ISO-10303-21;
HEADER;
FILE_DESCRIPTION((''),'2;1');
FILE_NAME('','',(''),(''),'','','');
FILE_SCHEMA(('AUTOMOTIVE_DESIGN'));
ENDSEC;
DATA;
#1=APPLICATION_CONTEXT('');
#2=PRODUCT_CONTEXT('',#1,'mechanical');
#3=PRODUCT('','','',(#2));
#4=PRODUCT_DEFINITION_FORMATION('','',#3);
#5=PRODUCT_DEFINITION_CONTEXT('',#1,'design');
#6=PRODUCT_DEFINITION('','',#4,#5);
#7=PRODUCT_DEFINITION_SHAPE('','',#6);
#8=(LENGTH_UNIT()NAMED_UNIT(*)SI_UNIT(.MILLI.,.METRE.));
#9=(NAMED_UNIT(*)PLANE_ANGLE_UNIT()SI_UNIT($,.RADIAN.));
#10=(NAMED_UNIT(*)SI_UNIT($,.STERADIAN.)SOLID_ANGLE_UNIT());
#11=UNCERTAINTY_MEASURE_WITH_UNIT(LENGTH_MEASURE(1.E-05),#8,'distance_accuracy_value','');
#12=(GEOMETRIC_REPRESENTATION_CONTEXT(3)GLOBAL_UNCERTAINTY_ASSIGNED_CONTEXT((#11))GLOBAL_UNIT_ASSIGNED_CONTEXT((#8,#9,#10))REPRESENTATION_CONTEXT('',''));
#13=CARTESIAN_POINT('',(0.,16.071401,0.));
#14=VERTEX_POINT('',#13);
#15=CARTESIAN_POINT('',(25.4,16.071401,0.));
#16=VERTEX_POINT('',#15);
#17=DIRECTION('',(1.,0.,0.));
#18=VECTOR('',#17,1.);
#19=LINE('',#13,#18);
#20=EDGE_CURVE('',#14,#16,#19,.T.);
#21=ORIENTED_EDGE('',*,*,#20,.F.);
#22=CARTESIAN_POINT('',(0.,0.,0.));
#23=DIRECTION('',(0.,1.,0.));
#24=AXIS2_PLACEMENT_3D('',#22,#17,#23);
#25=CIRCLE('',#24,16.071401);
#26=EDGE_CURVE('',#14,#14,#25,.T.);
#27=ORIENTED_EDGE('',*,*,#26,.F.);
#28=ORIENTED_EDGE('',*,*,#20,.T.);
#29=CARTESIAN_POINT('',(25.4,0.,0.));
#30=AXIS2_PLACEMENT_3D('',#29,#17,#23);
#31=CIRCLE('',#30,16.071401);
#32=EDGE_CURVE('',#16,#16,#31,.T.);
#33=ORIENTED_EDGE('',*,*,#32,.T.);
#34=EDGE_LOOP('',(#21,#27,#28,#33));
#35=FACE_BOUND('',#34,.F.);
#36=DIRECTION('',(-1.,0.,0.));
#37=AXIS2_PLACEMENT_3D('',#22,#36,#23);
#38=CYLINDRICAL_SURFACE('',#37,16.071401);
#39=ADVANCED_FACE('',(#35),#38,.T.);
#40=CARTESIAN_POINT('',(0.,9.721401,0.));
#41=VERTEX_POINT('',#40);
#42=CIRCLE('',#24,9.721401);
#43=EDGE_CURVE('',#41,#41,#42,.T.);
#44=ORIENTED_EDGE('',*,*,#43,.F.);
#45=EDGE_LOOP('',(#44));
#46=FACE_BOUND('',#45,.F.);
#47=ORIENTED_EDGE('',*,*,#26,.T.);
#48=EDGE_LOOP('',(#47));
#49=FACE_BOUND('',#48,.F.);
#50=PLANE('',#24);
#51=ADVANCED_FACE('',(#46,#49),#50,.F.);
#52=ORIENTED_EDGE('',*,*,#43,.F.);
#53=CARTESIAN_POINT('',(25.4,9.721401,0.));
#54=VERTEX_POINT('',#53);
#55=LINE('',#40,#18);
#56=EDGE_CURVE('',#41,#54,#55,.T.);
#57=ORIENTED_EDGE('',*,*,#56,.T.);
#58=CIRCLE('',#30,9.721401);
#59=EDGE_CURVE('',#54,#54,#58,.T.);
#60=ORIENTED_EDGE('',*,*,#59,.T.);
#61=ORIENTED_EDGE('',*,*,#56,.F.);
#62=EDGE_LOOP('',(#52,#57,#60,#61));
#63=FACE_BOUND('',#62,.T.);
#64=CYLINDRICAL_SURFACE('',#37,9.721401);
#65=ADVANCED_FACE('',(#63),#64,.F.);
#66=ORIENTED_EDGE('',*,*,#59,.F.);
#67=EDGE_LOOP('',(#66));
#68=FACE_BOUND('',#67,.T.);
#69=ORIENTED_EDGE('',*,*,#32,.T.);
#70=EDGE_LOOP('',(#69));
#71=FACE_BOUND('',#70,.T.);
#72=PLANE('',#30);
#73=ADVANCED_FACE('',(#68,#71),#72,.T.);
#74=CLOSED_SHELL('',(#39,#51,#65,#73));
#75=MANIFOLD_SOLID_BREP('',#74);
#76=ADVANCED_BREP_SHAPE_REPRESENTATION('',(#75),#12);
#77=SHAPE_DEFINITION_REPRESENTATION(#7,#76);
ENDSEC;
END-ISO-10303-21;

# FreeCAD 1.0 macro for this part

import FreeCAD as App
import Part
import Sketcher
Q = App.Units.Quantity

doc = App.newDocument("Part")
params = doc.addObject("Spreadsheet::Sheet", "Params")
for row, (alias, value) in enumerate([
    ("pad1_length", "1 in"),
    ("pocket1_length", "1 in"),
], start=1):
    params.set(f"A{row}", alias)
    params.set(f"B{row}", "=" + value)
    params.setAlias(f"B{row}", alias)

body = doc.addObject("PartDesign::Body", "Body")

# Sketch on YZ plane
sketch1 = body.newObject("Sketcher::SketchObject", "Sketch")
sketch1.AttachmentSupport = (doc.getObject("YZ_Plane"), [""])
sketch1.MapMode = "FlatFace"
sketch1.addGeometry(Part.Circle(App.Vector(0, 0, 0), App.Vector(0, 0, 1), 16), False)
sketch1.addConstraint(Sketcher.Constraint("Coincident", 0, 3, -1, 1))
sketch1.addConstraint(Sketcher.Constraint("Diameter", 0, Q("32.142802 mm")))
pad1 = body.newObject("PartDesign::Pad", "Pad")
pad1.Profile = sketch1
pad1.setExpression("Length", "Params.pad1_length")

# Sketch on YZ plane
sketch2 = body.newObject("Sketcher::SketchObject", "Sketch001")
sketch2.AttachmentSupport = (doc.getObject("YZ_Plane"), [""])
sketch2.MapMode = "FlatFace"
sketch2.addGeometry(Part.Circle(App.Vector(0, 0, 0), App.Vector(0, 0, 1), 10), False)
sketch2.addConstraint(Sketcher.Constraint("Coincident", 0, 3, -1, 1))
sketch2.addConstraint(Sketcher.Constraint("Diameter", 0, Q("19.442802 mm")))
pocket1 = body.newObject("PartDesign::Pocket", "Pocket")
pocket1.Profile = sketch2
pocket1.setExpression("Length", "Params.pocket1_length")
pocket1.Reversed = True

doc.recompute()
